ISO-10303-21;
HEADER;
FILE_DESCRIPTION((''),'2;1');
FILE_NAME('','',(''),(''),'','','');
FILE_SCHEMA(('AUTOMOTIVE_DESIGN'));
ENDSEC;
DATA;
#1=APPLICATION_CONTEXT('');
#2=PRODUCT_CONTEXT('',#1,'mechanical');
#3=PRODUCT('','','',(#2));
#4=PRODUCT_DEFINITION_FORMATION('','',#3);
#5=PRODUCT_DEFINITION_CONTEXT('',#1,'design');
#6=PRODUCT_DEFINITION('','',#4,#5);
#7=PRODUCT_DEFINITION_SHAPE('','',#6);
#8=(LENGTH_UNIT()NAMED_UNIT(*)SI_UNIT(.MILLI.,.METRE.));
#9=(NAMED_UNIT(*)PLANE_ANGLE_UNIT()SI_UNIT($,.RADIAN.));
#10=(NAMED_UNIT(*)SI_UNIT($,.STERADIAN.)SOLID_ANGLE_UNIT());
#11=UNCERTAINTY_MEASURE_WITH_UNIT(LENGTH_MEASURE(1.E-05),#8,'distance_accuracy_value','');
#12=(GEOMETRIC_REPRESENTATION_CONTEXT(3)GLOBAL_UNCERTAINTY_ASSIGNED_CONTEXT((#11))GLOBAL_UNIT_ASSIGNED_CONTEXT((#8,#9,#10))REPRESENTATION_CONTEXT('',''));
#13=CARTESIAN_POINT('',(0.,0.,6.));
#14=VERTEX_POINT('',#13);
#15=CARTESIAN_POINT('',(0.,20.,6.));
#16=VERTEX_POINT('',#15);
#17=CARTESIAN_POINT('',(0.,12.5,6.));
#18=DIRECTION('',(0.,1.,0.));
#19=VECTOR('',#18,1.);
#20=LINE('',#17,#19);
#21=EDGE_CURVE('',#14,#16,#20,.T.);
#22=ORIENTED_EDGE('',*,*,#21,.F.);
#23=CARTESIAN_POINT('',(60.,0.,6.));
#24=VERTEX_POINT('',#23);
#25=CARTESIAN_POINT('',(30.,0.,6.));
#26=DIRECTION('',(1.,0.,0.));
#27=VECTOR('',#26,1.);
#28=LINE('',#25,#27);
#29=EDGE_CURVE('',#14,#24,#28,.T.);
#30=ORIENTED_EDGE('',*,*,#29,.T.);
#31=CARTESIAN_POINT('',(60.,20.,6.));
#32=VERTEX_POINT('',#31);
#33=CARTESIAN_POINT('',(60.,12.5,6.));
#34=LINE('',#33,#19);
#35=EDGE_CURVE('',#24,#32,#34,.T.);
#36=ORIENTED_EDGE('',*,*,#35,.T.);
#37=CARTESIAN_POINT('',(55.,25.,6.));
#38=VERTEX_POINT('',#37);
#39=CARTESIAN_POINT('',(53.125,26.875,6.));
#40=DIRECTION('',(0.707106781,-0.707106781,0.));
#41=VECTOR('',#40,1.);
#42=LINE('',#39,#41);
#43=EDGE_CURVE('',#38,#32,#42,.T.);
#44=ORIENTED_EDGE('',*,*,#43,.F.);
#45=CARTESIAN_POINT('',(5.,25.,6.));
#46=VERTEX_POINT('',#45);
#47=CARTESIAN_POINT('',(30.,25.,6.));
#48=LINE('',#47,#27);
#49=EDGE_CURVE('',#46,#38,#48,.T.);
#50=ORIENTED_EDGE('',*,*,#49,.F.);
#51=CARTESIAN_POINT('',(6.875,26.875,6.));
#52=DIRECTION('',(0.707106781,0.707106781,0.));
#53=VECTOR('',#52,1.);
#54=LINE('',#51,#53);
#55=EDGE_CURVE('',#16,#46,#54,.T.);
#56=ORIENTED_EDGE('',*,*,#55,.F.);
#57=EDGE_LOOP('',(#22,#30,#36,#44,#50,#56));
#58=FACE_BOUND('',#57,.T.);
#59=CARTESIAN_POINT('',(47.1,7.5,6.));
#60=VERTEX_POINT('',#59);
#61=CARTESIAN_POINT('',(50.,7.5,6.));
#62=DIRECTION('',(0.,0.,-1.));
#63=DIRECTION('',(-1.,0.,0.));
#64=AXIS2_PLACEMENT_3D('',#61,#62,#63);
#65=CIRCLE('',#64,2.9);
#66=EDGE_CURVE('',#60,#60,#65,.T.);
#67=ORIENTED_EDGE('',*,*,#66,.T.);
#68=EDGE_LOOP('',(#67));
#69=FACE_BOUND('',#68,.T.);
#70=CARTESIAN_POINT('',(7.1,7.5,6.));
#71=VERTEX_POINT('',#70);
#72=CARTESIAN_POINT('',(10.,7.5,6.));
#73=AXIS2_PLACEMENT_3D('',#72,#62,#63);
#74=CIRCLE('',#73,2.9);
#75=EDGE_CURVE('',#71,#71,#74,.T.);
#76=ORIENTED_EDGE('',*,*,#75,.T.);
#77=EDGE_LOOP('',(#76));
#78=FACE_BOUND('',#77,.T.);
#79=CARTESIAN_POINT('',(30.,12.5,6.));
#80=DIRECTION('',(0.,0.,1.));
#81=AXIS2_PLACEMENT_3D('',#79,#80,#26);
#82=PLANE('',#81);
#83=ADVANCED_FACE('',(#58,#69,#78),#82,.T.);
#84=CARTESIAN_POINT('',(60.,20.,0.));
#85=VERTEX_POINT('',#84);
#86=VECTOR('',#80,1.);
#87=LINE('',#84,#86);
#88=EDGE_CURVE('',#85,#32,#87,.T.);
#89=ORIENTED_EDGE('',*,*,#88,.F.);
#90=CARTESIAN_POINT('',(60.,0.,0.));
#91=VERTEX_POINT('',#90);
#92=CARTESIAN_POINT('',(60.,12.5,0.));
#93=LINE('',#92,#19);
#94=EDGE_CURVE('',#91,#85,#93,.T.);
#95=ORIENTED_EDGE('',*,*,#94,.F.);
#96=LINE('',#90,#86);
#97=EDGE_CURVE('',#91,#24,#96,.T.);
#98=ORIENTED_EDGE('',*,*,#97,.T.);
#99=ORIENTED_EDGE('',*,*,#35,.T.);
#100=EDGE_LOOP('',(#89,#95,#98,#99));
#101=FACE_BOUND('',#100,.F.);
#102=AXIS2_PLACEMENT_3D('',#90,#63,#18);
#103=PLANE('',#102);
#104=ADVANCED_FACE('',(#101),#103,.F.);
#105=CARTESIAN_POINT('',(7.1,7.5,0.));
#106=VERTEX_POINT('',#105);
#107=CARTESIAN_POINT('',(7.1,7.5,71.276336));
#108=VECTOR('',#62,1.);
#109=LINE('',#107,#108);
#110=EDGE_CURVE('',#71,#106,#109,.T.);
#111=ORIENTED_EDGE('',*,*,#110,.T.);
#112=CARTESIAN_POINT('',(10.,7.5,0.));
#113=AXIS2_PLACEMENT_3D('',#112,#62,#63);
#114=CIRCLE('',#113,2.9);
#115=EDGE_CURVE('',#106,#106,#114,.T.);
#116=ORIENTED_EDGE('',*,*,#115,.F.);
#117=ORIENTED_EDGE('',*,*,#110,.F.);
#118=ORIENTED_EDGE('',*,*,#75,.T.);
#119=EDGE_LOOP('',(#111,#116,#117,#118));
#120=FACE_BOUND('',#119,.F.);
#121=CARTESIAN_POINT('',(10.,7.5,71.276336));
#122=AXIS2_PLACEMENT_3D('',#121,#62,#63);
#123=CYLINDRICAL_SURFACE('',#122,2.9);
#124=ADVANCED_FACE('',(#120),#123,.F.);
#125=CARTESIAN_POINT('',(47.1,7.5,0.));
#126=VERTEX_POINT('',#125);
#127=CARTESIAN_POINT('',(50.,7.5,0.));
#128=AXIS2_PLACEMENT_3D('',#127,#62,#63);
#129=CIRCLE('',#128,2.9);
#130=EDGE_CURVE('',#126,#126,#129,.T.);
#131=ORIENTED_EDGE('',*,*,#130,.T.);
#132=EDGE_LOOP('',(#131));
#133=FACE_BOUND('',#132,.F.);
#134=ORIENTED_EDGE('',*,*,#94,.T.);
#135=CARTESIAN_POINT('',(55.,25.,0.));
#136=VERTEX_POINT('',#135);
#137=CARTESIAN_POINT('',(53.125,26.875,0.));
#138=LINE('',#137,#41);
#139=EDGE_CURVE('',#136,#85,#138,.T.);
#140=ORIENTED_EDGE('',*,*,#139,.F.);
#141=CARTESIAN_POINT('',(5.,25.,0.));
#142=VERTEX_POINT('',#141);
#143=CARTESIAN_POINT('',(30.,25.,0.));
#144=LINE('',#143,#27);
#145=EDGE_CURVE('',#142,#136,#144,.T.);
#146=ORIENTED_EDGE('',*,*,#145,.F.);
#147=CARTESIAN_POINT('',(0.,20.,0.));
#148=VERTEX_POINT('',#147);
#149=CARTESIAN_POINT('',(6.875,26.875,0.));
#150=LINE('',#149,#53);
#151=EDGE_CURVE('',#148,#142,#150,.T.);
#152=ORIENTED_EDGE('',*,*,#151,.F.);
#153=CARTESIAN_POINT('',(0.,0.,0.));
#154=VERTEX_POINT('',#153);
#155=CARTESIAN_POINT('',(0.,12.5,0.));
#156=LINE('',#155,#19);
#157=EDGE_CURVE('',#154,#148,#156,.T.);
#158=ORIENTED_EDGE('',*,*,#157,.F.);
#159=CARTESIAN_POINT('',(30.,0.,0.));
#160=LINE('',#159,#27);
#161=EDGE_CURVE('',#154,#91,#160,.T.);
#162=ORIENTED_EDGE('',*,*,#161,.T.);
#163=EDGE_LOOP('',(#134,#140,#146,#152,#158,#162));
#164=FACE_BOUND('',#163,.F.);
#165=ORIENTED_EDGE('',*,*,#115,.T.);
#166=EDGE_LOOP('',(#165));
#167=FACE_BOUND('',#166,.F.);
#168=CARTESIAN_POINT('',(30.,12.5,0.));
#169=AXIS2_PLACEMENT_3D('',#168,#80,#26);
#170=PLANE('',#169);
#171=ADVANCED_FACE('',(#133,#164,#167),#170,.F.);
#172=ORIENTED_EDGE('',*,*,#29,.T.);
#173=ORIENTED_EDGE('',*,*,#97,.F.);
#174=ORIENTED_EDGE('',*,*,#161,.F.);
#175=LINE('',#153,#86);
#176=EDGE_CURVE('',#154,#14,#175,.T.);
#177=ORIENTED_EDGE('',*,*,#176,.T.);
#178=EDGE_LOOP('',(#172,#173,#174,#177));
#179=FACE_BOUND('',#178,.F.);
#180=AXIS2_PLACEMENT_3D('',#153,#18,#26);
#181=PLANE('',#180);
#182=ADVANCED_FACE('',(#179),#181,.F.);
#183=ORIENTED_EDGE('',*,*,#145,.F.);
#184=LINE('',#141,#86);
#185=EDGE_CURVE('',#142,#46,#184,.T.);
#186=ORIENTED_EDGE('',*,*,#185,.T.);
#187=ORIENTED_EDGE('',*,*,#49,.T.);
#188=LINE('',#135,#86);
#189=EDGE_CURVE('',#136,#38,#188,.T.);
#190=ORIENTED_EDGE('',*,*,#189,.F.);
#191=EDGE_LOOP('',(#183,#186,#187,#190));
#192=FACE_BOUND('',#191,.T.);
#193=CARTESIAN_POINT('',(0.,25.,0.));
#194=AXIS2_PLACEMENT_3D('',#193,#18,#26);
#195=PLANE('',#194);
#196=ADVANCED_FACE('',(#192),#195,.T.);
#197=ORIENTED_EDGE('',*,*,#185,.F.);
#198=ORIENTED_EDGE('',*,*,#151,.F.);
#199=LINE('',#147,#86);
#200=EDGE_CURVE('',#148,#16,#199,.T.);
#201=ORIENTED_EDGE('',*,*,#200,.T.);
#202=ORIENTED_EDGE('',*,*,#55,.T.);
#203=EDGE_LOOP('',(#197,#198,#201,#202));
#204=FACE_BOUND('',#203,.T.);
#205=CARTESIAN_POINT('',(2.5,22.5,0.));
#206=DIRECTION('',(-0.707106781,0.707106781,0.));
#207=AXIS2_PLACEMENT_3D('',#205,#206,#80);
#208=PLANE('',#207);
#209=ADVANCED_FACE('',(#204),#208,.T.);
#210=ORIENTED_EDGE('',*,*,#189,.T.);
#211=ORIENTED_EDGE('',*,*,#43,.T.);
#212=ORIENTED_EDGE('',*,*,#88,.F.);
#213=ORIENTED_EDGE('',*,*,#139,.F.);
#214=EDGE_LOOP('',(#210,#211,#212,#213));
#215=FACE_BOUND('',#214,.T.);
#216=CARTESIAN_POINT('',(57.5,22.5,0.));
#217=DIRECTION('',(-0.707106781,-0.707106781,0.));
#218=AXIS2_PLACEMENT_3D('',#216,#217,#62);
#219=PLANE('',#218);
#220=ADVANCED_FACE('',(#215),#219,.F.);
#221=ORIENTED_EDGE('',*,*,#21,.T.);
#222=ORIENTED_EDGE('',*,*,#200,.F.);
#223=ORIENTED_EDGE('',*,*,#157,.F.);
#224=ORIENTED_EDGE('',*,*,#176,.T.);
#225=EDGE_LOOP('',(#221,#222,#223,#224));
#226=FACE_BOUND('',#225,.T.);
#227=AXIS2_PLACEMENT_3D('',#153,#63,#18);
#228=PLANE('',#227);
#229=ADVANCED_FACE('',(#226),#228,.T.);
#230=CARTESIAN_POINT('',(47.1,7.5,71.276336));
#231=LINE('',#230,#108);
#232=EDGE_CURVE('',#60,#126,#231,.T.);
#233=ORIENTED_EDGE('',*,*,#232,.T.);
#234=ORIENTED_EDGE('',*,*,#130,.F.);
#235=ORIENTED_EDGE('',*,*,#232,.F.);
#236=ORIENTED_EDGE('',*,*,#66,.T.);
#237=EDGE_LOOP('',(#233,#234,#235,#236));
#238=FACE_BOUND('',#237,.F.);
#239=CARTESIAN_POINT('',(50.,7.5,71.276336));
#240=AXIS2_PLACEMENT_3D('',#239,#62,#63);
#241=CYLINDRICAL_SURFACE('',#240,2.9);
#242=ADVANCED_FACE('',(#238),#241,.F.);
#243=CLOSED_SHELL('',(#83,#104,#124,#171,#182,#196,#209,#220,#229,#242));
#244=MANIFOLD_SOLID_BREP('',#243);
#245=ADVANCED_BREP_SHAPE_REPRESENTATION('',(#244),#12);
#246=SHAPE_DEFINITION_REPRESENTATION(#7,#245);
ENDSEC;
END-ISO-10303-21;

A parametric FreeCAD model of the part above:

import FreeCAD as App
import Part
import Sketcher
from FreeCAD import Vector


def edges_at(feature, points):
    """Names of the edges that pass closest to the given points."""
    edges = feature.Shape.Edges
    near = lambda p: min(range(len(edges)), key=lambda i: edges[i].distToShape(Part.Vertex(*p))[0])
    return sorted({f"Edge{near(p) + 1}" for p in points})


def add_polygon(sketch, points):
    """Adds a closed chain of lines whose ends are joined by coincident constraints."""
    first, n = sketch.GeometryCount, len(points)
    for a, b in zip(points, points[1:] + points[:1]):
        sketch.addGeometry(Part.LineSegment(App.Vector(*a, 0), App.Vector(*b, 0)), False)
    for i in range(n):
        sketch.addConstraint(Sketcher.Constraint("Coincident", first + i, 2, first + (i + 1) % n, 1))

doc = App.newDocument("Part")
body = doc.addObject("PartDesign::Body", "Body")

# Sketch on XY plane
sketch1 = doc.addObject("Sketcher::SketchObject", "Sketch")
body.addObject(sketch1)
sketch1.AttachmentSupport = (doc.XY_Plane, [""])
sketch1.MapMode = "FlatFace"
add_polygon(sketch1, [(0, 25), (0, 0), (60, 0), (60, 25)])  # lines 0-3
sketch1.addConstraint([
    Sketcher.Constraint("Vertical", 0),
    Sketcher.Constraint("Horizontal", 1),
    Sketcher.Constraint("Vertical", 2),
    Sketcher.Constraint("Horizontal", 3),
    Sketcher.Constraint("Coincident", 0, 2, -1, 1),
    Sketcher.Constraint("DistanceX", 1, 1, 1, 2, 60.0),
    Sketcher.Constraint("DistanceY", 0, 2, 0, 1, 25.0),
])
pad1 = doc.addObject("PartDesign::Pad", "Pad")
body.addObject(pad1)
pad1.Profile = sketch1
pad1.Length = 6

# Sketch on XY plane
sketch2 = doc.addObject("Sketcher::SketchObject", "Sketch001")
body.addObject(sketch2)
sketch2.AttachmentSupport = (doc.XY_Plane, [""])
sketch2.MapMode = "FlatFace"
sketch2.AttachmentOffset = App.Placement(Vector(0, 0, 6), App.Rotation())
sketch2.addGeometry([
    Part.Circle(Vector(50, 7.5, 0), Vector(0, 0, 1), 2.9),
    Part.Circle(Vector(10, 7.5, 0), Vector(0, 0, 1), 2.9),
], False)
sketch2.addConstraint([
    Sketcher.Constraint("Equal", 0, 1),
    Sketcher.Constraint("Horizontal", 0, 3, 1, 3),
    Sketcher.Constraint("Diameter", 0, 5.8),
    Sketcher.Constraint("DistanceX", -1, 1, 0, 3, 50.0),
    Sketcher.Constraint("DistanceX", -1, 1, 1, 3, 10.0),
    Sketcher.Constraint("DistanceY", -1, 1, 0, 3, 7.5),
])
doc.recompute()
hole = doc.addObject("PartDesign::Hole", "Hole")
body.addObject(hole)
hole.Profile = sketch2
hole.ThreadType = "None"
hole.Diameter = 5.8
hole.DepthType = "ThroughAll"
doc.recompute()

chamfer = doc.addObject("PartDesign::Chamfer", "Chamfer")
body.addObject(chamfer)
chamfer.Base = (hole, edges_at(hole, [(60, 25, 3), (0, 25, 3)]))
chamfer.Size = 5

doc.recompute()
